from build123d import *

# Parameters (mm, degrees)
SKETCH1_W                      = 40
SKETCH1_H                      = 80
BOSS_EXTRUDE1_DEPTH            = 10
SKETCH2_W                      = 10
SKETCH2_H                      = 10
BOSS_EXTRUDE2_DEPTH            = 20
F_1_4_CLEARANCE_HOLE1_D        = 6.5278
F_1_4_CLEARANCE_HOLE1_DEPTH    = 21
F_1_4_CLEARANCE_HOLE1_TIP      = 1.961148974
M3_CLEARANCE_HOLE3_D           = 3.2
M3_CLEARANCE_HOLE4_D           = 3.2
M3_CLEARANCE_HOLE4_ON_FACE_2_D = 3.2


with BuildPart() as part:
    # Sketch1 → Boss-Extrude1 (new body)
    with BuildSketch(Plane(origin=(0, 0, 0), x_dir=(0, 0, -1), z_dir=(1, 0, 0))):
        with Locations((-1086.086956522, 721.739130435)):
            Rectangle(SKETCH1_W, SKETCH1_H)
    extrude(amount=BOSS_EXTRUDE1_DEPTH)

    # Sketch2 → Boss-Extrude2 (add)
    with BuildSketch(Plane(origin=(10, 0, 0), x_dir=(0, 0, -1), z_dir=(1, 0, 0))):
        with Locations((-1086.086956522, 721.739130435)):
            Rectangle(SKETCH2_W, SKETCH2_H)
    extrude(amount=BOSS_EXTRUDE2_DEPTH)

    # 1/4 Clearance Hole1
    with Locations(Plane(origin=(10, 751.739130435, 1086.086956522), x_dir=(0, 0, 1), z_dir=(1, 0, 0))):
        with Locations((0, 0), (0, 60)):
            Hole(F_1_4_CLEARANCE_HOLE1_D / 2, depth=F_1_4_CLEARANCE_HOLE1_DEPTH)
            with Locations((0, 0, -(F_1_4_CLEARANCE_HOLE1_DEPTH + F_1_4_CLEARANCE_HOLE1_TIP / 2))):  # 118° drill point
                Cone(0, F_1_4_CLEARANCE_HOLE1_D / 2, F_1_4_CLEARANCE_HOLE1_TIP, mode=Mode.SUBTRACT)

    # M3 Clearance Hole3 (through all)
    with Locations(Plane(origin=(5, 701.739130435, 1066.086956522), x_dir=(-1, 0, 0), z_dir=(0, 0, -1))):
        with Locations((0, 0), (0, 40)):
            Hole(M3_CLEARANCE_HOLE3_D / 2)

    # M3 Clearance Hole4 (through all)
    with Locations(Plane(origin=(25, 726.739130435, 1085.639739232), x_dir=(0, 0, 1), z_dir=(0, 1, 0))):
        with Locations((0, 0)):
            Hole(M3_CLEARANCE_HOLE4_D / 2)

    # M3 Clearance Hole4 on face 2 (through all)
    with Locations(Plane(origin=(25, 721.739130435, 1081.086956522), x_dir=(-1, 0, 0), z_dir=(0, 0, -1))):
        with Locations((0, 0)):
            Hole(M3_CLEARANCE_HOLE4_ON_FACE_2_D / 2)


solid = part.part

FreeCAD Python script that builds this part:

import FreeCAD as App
import Part
import Sketcher
from FreeCAD import Vector
Q = App.Units.Quantity

doc = App.newDocument("Part")
body = doc.addObject("PartDesign::Body", "Body")

sketch1 = body.newObject("Sketcher::SketchObject", "Sketch")
sketch1.AttachmentSupport = (doc.getObject("YZ_Plane"), [""])
sketch1.MapMode = "FlatFace"
sketch1.addGeometry([
    Part.LineSegment(Vector(762, 1106, 0), Vector(682, 1106, 0)),
    Part.LineSegment(Vector(682, 1106, 0), Vector(682, 1066, 0)),
    Part.LineSegment(Vector(682, 1066, 0), Vector(762, 1066, 0)),
    Part.LineSegment(Vector(762, 1066, 0), Vector(762, 1106, 0)),
], False)
sketch1.addConstraint([
    Sketcher.Constraint("Coincident", 0, 2, 1, 1),
    Sketcher.Constraint("Coincident", 1, 2, 2, 1),
    Sketcher.Constraint("Coincident", 2, 2, 3, 1),
    Sketcher.Constraint("Coincident", 3, 2, 0, 1),
    Sketcher.Constraint("Horizontal", 0),
    Sketcher.Constraint("Vertical", 1),
    Sketcher.Constraint("Horizontal", 2),
    Sketcher.Constraint("Vertical", 3),
    Sketcher.Constraint("DistanceX", 0, 2, 0, 1, Q("80 mm")),
    Sketcher.Constraint("DistanceY", 1, 2, 1, 1, Q("40 mm")),
    Sketcher.Constraint("DistanceX", -1, 1, 0, 2, Q("681.73913 mm")),
    Sketcher.Constraint("DistanceY", -1, 1, 0, 2, Q("1106.086957 mm")),
])
pad1 = body.newObject("PartDesign::Pad", "Pad")
pad1.Profile = sketch1
pad1.Length = 10

sketch2 = body.newObject("Sketcher::SketchObject", "Sketch001")
sketch2.AttachmentSupport = (doc.getObject("YZ_Plane"), [""])
sketch2.MapMode = "FlatFace"
sketch2.AttachmentOffset = App.Placement(Vector(0, 0, 10), App.Rotation())
sketch2.addGeometry([
    Part.LineSegment(Vector(727, 1091, 0), Vector(717, 1091, 0)),
    Part.LineSegment(Vector(717, 1091, 0), Vector(717, 1081, 0)),
    Part.LineSegment(Vector(717, 1081, 0), Vector(727, 1081, 0)),
    Part.LineSegment(Vector(727, 1081, 0), Vector(727, 1091, 0)),
], False)
sketch2.addConstraint([
    Sketcher.Constraint("Coincident", 0, 2, 1, 1),
    Sketcher.Constraint("Coincident", 1, 2, 2, 1),
    Sketcher.Constraint("Coincident", 2, 2, 3, 1),
    Sketcher.Constraint("Coincident", 3, 2, 0, 1),
    Sketcher.Constraint("Horizontal", 0),
    Sketcher.Constraint("Vertical", 1),
    Sketcher.Constraint("Horizontal", 2),
    Sketcher.Constraint("Vertical", 3),
    Sketcher.Constraint("Equal", 2, 1),
    Sketcher.Constraint("DistanceX", 0, 2, 0, 1, Q("10 mm")),
    Sketcher.Constraint("DistanceX", -1, 1, 0, 2, Q("716.73913 mm")),
    Sketcher.Constraint("DistanceY", -1, 1, 0, 2, Q("1091.086957 mm")),
])
pad2 = body.newObject("PartDesign::Pad", "Pad001")
pad2.Profile = sketch2
pad2.Length = 20

sketch3 = body.newObject("Sketcher::SketchObject", "Sketch002")
sketch3.AttachmentSupport = (doc.getObject("YZ_Plane"), [""])
sketch3.MapMode = "FlatFace"
sketch3.AttachmentOffset = App.Placement(Vector(0, 0, 10), App.Rotation())
sketch3.addGeometry([
    Part.Circle(Vector(751.7, 1086.1, 0), Vector(0, 0, 1), 3.3),
    Part.Circle(Vector(691.7, 1086.1, 0), Vector(0, 0, 1), 3.3),
], False)
sketch3.addConstraint([
    Sketcher.Constraint("Equal", 0, 1),
    Sketcher.Constraint("Horizontal", 0, 3, 1, 3),
    Sketcher.Constraint("DistanceX", 1, 3, 0, 3, Q("60 mm")),
    Sketcher.Constraint("Diameter", 0, Q("6.5278 mm")),
    Sketcher.Constraint("DistanceX", -1, 1, 0, 3, Q("751.73913 mm")),
    Sketcher.Constraint("DistanceY", -1, 1, 0, 3, Q("1086.086957 mm")),
])
doc.recompute()
hole = body.newObject("PartDesign::Hole", "Hole")
hole.Profile = sketch3
hole.ThreadType = "None"
hole.Diameter = 6.5278
hole.DepthType = "Dimension"
hole.Depth = 21
hole.DrillPoint = "Angled"
hole.DrillPointAngle = 118

sketch4 = body.newObject("Sketcher::SketchObject", "Sketch003")
sketch4.AttachmentSupport = (doc.getObject("XY_Plane"), [""])
sketch4.MapMode = "FlatFace"
sketch4.AttachmentOffset = App.Placement(Vector(0, 0, 1066.086957), App.Rotation())
sketch4.addGeometry([
    Part.Circle(Vector(5, 701.7, 0), Vector(0, 0, 1), 1.6),
    Part.Circle(Vector(5, 741.7, 0), Vector(0, 0, 1), 1.6),
], False)
sketch4.addConstraint([
    Sketcher.Constraint("Equal", 0, 1),
    Sketcher.Constraint("Vertical", 0, 3, 1, 3),
    Sketcher.Constraint("Diameter", 0, Q("3.2 mm")),
    Sketcher.Constraint("DistanceX", -1, 1, 0, 3, Q("5 mm")),
    Sketcher.Constraint("DistanceY", 0, 3, 1, 3, Q("40 mm")),
    Sketcher.Constraint("DistanceY", -1, 1, 0, 3, Q("701.73913 mm")),
])
doc.recompute()
hole2 = body.newObject("PartDesign::Hole", "Hole001")
hole2.Profile = sketch4
hole2.ThreadType = "None"
hole2.Diameter = 3.2
hole2.DepthType = "ThroughAll"
hole2.Reversed = True

sketch5 = body.newObject("Sketcher::SketchObject", "Sketch004")
sketch5.AttachmentSupport = (doc.getObject("XZ_Plane"), [""])
sketch5.MapMode = "FlatFace"
sketch5.AttachmentOffset = App.Placement(Vector(0, 0, -726.73913), App.Rotation())
sketch5.addGeometry(Part.Circle(Vector(25, 1085.6, 0), Vector(0, 0, 1), 1.6), False)
sketch5.addConstraint([
    Sketcher.Constraint("Diameter", 0, Q("3.2 mm")),
    Sketcher.Constraint("DistanceX", -1, 1, 0, 3, Q("25 mm")),
    Sketcher.Constraint("DistanceY", -1, 1, 0, 3, Q("1085.639739 mm")),
])
doc.recompute()
hole3 = body.newObject("PartDesign::Hole", "Hole002")
hole3.Profile = sketch5
hole3.ThreadType = "None"
hole3.Diameter = 3.2
hole3.DepthType = "ThroughAll"
hole3.Reversed = True

sketch6 = body.newObject("Sketcher::SketchObject", "Sketch005")
sketch6.AttachmentSupport = (doc.getObject("XY_Plane"), [""])
sketch6.MapMode = "FlatFace"
sketch6.AttachmentOffset = App.Placement(Vector(0, 0, 1081.086957), App.Rotation())
sketch6.addGeometry(Part.Circle(Vector(25, 721.7, 0), Vector(0, 0, 1), 1.6), False)
sketch6.addConstraint([
    Sketcher.Constraint("Diameter", 0, Q("3.2 mm")),
    Sketcher.Constraint("DistanceX", -1, 1, 0, 3, Q("25 mm")),
    Sketcher.Constraint("DistanceY", -1, 1, 0, 3, Q("721.73913 mm")),
])
doc.recompute()
hole4 = body.newObject("PartDesign::Hole", "Hole003")
hole4.Profile = sketch6
hole4.ThreadType = "None"
hole4.Diameter = 3.2
hole4.DepthType = "ThroughAll"
hole4.Reversed = True

doc.recompute()
